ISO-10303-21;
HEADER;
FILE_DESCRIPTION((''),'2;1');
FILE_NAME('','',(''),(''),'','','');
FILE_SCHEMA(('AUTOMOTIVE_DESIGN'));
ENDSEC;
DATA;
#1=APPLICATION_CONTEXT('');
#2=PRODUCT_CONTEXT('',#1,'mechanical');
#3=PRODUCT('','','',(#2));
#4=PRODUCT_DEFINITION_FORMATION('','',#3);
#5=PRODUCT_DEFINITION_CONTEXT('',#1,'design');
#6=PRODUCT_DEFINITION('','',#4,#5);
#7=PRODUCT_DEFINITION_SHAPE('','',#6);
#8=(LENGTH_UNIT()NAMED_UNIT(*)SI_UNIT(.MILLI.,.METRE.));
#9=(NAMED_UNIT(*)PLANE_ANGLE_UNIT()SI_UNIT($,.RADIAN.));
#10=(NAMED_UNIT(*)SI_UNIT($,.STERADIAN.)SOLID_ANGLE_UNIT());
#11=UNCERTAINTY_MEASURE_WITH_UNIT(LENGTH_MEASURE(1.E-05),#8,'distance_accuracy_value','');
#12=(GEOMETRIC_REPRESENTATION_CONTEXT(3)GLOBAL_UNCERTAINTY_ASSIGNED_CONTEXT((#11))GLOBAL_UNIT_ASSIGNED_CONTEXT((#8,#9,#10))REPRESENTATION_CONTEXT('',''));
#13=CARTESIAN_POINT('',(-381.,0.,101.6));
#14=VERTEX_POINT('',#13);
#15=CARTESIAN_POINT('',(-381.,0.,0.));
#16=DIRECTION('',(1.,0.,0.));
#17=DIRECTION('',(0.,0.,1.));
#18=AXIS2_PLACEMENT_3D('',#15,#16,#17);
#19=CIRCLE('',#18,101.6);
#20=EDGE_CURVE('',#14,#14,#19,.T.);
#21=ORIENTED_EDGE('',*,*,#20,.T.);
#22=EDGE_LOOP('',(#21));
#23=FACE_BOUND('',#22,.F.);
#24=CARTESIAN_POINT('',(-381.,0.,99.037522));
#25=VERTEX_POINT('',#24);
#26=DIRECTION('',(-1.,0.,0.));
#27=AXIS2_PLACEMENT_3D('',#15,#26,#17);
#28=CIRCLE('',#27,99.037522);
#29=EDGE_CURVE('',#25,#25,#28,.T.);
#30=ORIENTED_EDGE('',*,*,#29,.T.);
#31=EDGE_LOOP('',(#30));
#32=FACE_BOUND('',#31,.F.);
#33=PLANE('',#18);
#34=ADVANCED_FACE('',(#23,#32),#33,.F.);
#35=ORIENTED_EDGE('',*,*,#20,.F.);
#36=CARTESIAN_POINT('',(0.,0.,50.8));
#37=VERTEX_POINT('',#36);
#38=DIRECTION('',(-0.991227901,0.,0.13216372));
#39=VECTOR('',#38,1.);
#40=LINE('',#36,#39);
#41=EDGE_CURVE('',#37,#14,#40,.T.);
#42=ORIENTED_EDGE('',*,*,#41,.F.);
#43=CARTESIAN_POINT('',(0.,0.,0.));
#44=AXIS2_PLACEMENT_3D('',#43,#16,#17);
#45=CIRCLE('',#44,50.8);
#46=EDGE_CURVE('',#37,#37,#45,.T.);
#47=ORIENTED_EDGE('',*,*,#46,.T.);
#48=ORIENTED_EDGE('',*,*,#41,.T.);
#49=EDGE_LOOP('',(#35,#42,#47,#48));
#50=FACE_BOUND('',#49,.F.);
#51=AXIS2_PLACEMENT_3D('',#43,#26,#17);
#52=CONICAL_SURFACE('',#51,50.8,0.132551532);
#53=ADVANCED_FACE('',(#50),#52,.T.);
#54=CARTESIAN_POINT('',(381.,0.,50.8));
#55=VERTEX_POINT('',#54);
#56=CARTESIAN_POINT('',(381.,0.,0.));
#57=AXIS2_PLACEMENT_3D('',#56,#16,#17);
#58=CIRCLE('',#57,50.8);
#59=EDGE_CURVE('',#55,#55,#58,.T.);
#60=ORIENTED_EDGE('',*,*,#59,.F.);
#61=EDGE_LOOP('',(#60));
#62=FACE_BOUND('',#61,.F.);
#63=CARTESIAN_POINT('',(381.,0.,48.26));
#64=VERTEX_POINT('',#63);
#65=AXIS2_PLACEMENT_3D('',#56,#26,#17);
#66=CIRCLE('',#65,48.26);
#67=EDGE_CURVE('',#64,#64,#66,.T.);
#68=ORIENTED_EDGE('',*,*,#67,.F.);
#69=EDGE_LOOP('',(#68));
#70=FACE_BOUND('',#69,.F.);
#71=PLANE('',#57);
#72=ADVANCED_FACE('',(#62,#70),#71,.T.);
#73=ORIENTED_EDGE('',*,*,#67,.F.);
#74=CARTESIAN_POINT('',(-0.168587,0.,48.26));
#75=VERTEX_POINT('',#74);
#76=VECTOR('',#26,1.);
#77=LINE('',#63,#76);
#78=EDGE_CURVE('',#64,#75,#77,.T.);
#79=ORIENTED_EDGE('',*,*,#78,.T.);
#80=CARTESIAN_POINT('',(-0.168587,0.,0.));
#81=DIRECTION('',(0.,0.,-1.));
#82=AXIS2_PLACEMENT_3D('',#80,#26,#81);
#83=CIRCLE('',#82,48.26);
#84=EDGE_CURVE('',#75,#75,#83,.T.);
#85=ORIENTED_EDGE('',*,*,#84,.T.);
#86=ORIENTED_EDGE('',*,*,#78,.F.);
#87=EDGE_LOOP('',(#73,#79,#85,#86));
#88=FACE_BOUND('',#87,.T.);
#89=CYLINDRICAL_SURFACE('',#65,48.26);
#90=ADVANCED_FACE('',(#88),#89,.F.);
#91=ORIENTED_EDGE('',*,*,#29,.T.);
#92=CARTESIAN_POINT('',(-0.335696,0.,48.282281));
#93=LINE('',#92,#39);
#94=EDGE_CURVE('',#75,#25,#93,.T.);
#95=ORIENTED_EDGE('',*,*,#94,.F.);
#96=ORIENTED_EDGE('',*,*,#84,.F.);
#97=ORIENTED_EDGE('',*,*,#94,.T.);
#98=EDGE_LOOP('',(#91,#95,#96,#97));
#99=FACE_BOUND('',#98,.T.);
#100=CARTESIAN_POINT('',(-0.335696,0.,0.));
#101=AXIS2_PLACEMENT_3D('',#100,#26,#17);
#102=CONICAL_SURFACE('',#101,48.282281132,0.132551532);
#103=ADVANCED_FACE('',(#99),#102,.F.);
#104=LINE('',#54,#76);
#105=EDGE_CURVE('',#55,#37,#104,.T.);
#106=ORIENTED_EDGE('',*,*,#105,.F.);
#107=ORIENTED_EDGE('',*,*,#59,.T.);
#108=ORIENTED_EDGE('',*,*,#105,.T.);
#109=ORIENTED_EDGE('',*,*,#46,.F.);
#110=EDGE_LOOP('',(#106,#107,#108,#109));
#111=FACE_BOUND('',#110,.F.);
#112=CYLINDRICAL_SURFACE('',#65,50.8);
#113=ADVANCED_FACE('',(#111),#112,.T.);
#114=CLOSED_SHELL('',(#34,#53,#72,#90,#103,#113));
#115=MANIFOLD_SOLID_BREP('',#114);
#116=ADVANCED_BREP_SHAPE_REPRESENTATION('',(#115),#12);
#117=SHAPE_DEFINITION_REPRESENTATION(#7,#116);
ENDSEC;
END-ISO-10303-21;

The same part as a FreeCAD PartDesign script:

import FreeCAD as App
import Part
import Sketcher

V = App.Vector
Q = App.Units.Quantity


def faces_at(feature, points):
    """Names of the faces that lie closest to the given points."""
    faces = feature.Shape.Faces
    near = lambda p: min(range(len(faces)), key=lambda i: faces[i].distToShape(Part.Vertex(*p))[0])
    return sorted({f"Face{near(p) + 1}" for p in points})


def add_polygon(sketch, points):
    """Adds a closed chain of lines whose ends are joined by coincident constraints."""
    first, n = sketch.GeometryCount, len(points)
    for a, b in zip(points, points[1:] + points[:1]):
        sketch.addGeometry(Part.LineSegment(App.Vector(*a, 0), App.Vector(*b, 0)), False)
    for i in range(n):
        sketch.addConstraint(Sketcher.Constraint("Coincident", first + i, 2, first + (i + 1) % n, 1))

doc = App.newDocument("Part")
params = doc.addObject("Spreadsheet::Sheet", "Params")
for row, (alias, value) in enumerate([
    ("sketch1_width", "30 in"),
    ("sketch1_height", "4 in"),
    ("sketch1_height2", "2 in"),
    ("revolution_angle", "360 deg"),
    ("thickness_wall", "0.1 in"),
], start=1):
    params.set(f"A{row}", alias)
    params.set(f"B{row}", "=" + value)
    params.setAlias(f"B{row}", alias)

body = doc.addObject("PartDesign::Body", "Body")

# Sketch on XZ plane
sketch1 = doc.addObject("Sketcher::SketchObject", "Sketch")
body.addObject(sketch1)
sketch1.AttachmentSupport = (doc.XZ_Plane, [""])
sketch1.MapMode = "FlatFace"
add_polygon(sketch1, [(-381, 102), (-381, 0), (381, 0), (381, 51), (0, 51)])  # lines 0-4
sketch1.addConstraint([
    Sketcher.Constraint("Vertical", 0),
    Sketcher.Constraint("Horizontal", 1),
    Sketcher.Constraint("Vertical", 2),
    Sketcher.Constraint("Horizontal", 3),
    Sketcher.Constraint("Symmetric", 0, 2, 1, 2, -1, 1),
    Sketcher.Constraint("PointOnObject", 3, 2, -2),
    Sketcher.Constraint("DistanceX", 1, 1, 1, 2, Q("30 in")),
    Sketcher.Constraint("DistanceY", 0, 2, 0, 1, Q("4 in")),
    Sketcher.Constraint("DistanceY", 2, 1, 2, 2, Q("2 in")),
])
sketch1.setExpression("Constraints[11]", "Params.sketch1_width")
sketch1.setExpression("Constraints[12]", "Params.sketch1_height")
sketch1.setExpression("Constraints[13]", "Params.sketch1_height2")
revolution = doc.addObject("PartDesign::Revolution", "Revolution")
body.addObject(revolution)
revolution.Profile = sketch1
revolution.ReferenceAxis = (sketch1, ["H_Axis"])
revolution.setExpression("Angle", "Params.revolution_angle")
doc.recompute()

thickness = doc.addObject("PartDesign::Thickness", "Thickness")
body.addObject(thickness)
thickness.Base = (revolution, faces_at(revolution, [(-381, 0, 0), (381, 0, 0)]))
thickness.setExpression("Value", "Params.thickness_wall")
thickness.Reversed = True
thickness.Join = "Intersection"

doc.recompute()
